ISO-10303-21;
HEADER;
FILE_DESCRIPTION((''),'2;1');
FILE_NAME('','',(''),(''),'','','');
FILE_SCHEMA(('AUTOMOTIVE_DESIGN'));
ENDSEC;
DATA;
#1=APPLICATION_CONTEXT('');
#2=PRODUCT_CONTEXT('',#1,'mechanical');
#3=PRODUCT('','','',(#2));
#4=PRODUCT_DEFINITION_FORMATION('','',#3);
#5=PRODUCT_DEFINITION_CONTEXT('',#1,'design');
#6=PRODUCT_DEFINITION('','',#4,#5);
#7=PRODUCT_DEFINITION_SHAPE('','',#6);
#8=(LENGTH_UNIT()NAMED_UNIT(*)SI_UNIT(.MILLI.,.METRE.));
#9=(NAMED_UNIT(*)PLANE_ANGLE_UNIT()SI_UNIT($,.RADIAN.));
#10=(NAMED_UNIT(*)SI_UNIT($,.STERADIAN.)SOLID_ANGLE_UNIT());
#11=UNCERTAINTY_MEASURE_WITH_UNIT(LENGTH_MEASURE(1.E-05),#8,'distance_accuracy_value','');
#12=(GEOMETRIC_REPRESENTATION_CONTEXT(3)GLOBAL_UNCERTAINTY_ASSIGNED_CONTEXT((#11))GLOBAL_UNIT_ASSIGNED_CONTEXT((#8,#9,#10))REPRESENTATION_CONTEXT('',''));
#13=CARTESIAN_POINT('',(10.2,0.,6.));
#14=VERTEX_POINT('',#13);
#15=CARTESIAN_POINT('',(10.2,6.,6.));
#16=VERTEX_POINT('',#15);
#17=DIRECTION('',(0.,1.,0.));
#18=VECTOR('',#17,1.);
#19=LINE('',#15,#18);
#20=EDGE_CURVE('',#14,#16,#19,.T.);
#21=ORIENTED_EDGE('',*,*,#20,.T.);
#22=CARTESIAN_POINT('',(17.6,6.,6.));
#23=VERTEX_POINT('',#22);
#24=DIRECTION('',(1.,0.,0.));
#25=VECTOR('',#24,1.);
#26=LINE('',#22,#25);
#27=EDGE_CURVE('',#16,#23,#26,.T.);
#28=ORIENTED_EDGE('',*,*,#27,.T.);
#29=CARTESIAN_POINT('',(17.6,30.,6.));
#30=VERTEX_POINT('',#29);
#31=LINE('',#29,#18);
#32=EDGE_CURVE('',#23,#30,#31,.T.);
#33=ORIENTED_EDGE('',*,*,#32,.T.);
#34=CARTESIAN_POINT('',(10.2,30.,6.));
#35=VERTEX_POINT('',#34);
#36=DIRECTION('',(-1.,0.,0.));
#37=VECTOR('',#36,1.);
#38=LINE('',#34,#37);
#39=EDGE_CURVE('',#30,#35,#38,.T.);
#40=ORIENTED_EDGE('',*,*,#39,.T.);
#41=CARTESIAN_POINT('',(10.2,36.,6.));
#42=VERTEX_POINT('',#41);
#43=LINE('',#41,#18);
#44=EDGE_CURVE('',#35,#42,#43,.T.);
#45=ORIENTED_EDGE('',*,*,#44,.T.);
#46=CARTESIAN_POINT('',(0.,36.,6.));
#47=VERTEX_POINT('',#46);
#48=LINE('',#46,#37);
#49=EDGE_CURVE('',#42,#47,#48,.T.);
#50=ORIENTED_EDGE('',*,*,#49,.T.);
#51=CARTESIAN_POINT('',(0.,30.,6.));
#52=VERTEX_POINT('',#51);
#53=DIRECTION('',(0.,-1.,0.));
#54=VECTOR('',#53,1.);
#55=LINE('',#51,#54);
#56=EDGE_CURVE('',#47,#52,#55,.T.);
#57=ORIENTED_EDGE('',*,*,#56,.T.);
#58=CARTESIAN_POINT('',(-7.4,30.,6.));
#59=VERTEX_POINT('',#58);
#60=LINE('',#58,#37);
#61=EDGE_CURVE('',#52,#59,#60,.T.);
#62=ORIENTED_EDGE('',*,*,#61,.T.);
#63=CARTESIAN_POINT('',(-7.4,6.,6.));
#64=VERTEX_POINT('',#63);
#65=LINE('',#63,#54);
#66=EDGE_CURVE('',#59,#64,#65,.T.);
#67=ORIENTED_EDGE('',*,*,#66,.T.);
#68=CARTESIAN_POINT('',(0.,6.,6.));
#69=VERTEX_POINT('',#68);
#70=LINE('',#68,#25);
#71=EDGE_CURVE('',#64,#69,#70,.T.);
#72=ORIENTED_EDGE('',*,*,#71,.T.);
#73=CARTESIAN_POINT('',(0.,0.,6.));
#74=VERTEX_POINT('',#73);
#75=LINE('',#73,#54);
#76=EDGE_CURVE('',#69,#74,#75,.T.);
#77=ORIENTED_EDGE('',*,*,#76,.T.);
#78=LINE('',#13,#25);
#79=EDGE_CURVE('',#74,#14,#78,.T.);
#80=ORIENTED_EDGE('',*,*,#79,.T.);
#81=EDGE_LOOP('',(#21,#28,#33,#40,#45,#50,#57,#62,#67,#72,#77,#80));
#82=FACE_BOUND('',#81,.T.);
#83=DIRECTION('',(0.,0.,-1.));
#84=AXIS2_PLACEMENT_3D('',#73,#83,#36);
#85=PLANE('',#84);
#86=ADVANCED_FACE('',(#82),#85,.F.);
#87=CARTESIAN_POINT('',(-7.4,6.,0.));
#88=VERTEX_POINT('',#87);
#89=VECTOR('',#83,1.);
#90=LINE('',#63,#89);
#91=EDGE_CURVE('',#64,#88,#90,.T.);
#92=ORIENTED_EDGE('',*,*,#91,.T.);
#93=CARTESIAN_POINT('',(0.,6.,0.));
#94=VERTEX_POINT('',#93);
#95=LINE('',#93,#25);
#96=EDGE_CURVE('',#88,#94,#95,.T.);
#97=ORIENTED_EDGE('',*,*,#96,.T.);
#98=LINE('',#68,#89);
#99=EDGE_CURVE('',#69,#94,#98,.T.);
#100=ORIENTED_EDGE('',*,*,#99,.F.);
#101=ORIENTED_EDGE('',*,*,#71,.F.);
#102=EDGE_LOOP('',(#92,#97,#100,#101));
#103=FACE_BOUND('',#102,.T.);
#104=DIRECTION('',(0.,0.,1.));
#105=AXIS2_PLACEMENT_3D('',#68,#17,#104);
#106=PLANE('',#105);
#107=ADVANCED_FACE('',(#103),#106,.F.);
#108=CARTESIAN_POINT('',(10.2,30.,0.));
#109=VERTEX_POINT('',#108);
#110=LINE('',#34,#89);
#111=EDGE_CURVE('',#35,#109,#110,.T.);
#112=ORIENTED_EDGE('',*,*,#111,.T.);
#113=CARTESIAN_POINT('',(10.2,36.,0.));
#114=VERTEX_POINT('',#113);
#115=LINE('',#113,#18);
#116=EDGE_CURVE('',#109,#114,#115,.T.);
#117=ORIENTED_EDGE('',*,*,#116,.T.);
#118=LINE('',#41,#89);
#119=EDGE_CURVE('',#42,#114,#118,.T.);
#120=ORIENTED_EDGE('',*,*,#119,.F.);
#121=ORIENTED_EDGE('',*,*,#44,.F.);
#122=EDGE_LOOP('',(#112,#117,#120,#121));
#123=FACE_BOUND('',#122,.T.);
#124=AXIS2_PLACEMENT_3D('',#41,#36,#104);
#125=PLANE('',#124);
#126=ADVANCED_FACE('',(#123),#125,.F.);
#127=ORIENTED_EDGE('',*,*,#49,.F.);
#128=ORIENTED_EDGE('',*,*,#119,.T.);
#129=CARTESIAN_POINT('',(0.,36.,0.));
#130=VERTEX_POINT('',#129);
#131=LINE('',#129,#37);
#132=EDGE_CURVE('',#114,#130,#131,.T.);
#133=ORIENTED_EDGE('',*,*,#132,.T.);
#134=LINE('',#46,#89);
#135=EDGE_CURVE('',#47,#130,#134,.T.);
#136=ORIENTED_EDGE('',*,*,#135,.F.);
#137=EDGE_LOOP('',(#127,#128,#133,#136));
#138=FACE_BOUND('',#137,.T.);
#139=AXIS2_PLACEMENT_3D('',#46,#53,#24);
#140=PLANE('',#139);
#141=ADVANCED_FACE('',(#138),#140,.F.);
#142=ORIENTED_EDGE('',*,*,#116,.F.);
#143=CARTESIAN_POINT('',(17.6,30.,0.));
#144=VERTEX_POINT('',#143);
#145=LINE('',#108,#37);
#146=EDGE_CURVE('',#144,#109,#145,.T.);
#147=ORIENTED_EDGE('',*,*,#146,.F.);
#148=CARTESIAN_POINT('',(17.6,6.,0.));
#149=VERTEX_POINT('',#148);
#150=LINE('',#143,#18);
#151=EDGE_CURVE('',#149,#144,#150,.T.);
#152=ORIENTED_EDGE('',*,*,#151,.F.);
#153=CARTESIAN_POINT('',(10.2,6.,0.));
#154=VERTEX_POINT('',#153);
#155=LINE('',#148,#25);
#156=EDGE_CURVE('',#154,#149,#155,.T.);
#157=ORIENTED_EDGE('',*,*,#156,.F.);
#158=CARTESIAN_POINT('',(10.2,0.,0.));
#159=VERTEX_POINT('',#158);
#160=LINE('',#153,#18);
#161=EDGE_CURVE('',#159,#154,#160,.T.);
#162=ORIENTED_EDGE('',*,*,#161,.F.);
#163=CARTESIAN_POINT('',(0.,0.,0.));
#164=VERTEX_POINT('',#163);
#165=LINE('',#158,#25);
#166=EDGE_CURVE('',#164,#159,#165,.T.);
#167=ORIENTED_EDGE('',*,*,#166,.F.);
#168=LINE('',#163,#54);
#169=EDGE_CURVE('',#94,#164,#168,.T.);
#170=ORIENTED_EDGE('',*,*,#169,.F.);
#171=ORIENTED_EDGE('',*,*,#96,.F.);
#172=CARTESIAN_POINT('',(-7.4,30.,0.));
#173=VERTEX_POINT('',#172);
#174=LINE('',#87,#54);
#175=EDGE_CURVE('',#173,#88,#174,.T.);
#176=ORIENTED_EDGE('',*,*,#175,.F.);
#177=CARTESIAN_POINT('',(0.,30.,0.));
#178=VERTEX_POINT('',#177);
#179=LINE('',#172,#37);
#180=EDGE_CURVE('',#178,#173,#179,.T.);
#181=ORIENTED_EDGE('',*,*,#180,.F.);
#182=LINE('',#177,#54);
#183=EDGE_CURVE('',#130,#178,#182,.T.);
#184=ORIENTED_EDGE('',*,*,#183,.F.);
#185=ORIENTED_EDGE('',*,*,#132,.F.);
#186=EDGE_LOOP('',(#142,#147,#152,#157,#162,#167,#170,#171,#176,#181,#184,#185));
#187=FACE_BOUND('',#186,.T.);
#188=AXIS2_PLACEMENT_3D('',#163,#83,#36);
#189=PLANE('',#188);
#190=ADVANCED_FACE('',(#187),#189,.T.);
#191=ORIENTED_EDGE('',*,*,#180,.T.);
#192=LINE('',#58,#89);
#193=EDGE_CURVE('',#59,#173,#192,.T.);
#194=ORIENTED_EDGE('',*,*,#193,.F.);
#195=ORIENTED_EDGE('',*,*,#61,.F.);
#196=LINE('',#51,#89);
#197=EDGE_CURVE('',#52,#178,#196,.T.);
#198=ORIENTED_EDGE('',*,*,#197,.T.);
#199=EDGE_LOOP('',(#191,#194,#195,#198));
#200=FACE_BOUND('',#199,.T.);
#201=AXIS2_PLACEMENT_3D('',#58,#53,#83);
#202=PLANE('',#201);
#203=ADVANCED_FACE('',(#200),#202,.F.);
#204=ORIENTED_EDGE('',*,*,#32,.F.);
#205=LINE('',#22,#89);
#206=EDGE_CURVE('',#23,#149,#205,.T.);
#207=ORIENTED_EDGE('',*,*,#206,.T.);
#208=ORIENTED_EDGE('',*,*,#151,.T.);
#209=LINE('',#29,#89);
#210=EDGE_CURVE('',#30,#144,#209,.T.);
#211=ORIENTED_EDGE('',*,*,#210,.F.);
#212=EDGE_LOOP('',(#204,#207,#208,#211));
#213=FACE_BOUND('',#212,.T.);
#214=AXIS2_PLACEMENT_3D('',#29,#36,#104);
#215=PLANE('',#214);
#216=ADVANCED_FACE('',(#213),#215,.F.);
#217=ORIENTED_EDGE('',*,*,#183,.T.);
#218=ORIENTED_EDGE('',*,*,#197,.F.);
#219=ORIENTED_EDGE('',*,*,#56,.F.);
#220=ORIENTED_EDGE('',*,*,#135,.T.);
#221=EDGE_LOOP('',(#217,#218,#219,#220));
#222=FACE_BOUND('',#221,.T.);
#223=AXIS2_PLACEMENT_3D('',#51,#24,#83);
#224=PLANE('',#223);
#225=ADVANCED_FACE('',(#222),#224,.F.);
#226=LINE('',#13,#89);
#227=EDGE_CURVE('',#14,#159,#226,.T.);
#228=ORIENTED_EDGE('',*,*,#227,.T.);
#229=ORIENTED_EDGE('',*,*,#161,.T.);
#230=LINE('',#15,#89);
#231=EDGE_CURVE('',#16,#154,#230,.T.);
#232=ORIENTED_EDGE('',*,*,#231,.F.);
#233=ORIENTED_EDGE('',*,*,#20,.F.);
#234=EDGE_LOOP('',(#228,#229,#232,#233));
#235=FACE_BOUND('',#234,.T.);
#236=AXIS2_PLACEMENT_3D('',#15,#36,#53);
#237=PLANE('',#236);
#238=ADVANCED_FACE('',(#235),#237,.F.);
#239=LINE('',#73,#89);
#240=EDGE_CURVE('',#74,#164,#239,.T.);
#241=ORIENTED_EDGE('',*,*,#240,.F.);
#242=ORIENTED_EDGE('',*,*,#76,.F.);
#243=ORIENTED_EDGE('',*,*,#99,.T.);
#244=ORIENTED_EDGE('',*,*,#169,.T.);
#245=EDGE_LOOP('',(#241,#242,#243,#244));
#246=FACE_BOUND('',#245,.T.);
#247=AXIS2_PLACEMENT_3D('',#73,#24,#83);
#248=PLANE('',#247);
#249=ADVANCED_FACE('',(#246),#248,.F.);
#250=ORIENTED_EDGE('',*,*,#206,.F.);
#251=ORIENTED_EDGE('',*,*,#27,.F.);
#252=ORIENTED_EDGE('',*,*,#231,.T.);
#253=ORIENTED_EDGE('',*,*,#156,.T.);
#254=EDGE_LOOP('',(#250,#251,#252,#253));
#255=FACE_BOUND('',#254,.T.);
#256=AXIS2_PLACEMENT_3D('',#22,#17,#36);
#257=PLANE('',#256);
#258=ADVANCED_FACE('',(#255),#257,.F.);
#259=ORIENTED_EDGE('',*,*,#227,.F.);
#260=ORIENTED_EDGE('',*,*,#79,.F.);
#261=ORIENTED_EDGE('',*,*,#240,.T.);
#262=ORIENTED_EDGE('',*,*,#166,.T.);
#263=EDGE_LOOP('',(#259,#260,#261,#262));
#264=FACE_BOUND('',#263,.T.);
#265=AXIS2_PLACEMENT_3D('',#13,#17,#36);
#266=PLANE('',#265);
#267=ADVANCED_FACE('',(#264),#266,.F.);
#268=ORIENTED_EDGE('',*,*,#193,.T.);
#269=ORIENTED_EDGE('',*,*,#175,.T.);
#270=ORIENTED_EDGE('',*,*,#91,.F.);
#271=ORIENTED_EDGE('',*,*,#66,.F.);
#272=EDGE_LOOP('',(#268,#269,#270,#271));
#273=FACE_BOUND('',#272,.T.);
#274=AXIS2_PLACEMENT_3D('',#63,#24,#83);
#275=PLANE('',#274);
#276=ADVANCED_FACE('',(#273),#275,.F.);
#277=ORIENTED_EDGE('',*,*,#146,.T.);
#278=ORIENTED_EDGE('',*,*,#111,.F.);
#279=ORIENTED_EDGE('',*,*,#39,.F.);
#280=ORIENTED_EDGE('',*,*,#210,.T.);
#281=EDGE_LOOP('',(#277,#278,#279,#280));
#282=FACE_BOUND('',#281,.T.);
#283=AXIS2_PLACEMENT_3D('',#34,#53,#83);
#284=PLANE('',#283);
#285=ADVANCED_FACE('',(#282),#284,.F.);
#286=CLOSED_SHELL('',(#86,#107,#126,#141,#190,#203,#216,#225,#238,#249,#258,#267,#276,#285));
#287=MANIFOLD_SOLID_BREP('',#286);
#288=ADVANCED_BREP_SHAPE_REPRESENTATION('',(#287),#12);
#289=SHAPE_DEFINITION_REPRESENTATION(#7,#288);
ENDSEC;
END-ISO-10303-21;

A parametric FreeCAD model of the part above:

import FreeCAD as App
import Part
import Sketcher


def add_polygon(sketch, points):
    """Adds a closed chain of lines whose ends are joined by coincident constraints."""
    first, n = sketch.GeometryCount, len(points)
    for a, b in zip(points, points[1:] + points[:1]):
        sketch.addGeometry(Part.LineSegment(App.Vector(*a, 0), App.Vector(*b, 0)), False)
    for i in range(n):
        sketch.addConstraint(Sketcher.Constraint("Coincident", first + i, 2, first + (i + 1) % n, 1))

doc = App.newDocument("Part")
body = doc.addObject("PartDesign::Body", "Body")

# Sketch on XY plane
sketch1 = body.newObject("Sketcher::SketchObject", "Sketch")
sketch1.AttachmentSupport = (doc.getObject("XY_Plane"), [""])
sketch1.MapMode = "FlatFace"
add_polygon(sketch1, [(0, 6), (0, 0), (10, 0), (10, 6), (18, 6), (18, 30), (10, 30), (10, 36), (0, 36), (0, 30), (-7, 30), (-7, 6)])  # lines 0-11
sketch1.addConstraint([
    Sketcher.Constraint("Vertical", 0),
    Sketcher.Constraint("Horizontal", 1),
    Sketcher.Constraint("Vertical", 2),
    Sketcher.Constraint("Horizontal", 3),
    Sketcher.Constraint("Vertical", 4),
    Sketcher.Constraint("Horizontal", 5),
    Sketcher.Constraint("Vertical", 6),
    Sketcher.Constraint("Horizontal", 7),
    Sketcher.Constraint("Vertical", 8),
    Sketcher.Constraint("Horizontal", 9),
    Sketcher.Constraint("Vertical", 10),
    Sketcher.Constraint("Horizontal", 11),
    Sketcher.Constraint("Coincident", 0, 2, -1, 1),
    Sketcher.Constraint("PointOnObject", 7, 2, -2),
    Sketcher.Constraint("Horizontal", 5, 2, 8, 2),
    Sketcher.Constraint("Horizontal", 3, 2, 10, 2),
    Sketcher.Constraint("Vertical", 2, 2, 5, 2),
    Sketcher.Constraint("Equal", 5, 9),
    Sketcher.Constraint("Equal", 2, 6),
    Sketcher.Constraint("DistanceY", 0, 2, 0, 1, 6.0),
    Sketcher.Constraint("DistanceY", 4, 1, 4, 2, 24.0),
    Sketcher.Constraint("DistanceX", 1, 1, 1, 2, 10.2),
    Sketcher.Constraint("DistanceX", 3, 1, 3, 2, 7.4),
])
pad1 = body.newObject("PartDesign::Pad", "Pad")
pad1.Profile = sketch1
pad1.Length = 6

doc.recompute()
